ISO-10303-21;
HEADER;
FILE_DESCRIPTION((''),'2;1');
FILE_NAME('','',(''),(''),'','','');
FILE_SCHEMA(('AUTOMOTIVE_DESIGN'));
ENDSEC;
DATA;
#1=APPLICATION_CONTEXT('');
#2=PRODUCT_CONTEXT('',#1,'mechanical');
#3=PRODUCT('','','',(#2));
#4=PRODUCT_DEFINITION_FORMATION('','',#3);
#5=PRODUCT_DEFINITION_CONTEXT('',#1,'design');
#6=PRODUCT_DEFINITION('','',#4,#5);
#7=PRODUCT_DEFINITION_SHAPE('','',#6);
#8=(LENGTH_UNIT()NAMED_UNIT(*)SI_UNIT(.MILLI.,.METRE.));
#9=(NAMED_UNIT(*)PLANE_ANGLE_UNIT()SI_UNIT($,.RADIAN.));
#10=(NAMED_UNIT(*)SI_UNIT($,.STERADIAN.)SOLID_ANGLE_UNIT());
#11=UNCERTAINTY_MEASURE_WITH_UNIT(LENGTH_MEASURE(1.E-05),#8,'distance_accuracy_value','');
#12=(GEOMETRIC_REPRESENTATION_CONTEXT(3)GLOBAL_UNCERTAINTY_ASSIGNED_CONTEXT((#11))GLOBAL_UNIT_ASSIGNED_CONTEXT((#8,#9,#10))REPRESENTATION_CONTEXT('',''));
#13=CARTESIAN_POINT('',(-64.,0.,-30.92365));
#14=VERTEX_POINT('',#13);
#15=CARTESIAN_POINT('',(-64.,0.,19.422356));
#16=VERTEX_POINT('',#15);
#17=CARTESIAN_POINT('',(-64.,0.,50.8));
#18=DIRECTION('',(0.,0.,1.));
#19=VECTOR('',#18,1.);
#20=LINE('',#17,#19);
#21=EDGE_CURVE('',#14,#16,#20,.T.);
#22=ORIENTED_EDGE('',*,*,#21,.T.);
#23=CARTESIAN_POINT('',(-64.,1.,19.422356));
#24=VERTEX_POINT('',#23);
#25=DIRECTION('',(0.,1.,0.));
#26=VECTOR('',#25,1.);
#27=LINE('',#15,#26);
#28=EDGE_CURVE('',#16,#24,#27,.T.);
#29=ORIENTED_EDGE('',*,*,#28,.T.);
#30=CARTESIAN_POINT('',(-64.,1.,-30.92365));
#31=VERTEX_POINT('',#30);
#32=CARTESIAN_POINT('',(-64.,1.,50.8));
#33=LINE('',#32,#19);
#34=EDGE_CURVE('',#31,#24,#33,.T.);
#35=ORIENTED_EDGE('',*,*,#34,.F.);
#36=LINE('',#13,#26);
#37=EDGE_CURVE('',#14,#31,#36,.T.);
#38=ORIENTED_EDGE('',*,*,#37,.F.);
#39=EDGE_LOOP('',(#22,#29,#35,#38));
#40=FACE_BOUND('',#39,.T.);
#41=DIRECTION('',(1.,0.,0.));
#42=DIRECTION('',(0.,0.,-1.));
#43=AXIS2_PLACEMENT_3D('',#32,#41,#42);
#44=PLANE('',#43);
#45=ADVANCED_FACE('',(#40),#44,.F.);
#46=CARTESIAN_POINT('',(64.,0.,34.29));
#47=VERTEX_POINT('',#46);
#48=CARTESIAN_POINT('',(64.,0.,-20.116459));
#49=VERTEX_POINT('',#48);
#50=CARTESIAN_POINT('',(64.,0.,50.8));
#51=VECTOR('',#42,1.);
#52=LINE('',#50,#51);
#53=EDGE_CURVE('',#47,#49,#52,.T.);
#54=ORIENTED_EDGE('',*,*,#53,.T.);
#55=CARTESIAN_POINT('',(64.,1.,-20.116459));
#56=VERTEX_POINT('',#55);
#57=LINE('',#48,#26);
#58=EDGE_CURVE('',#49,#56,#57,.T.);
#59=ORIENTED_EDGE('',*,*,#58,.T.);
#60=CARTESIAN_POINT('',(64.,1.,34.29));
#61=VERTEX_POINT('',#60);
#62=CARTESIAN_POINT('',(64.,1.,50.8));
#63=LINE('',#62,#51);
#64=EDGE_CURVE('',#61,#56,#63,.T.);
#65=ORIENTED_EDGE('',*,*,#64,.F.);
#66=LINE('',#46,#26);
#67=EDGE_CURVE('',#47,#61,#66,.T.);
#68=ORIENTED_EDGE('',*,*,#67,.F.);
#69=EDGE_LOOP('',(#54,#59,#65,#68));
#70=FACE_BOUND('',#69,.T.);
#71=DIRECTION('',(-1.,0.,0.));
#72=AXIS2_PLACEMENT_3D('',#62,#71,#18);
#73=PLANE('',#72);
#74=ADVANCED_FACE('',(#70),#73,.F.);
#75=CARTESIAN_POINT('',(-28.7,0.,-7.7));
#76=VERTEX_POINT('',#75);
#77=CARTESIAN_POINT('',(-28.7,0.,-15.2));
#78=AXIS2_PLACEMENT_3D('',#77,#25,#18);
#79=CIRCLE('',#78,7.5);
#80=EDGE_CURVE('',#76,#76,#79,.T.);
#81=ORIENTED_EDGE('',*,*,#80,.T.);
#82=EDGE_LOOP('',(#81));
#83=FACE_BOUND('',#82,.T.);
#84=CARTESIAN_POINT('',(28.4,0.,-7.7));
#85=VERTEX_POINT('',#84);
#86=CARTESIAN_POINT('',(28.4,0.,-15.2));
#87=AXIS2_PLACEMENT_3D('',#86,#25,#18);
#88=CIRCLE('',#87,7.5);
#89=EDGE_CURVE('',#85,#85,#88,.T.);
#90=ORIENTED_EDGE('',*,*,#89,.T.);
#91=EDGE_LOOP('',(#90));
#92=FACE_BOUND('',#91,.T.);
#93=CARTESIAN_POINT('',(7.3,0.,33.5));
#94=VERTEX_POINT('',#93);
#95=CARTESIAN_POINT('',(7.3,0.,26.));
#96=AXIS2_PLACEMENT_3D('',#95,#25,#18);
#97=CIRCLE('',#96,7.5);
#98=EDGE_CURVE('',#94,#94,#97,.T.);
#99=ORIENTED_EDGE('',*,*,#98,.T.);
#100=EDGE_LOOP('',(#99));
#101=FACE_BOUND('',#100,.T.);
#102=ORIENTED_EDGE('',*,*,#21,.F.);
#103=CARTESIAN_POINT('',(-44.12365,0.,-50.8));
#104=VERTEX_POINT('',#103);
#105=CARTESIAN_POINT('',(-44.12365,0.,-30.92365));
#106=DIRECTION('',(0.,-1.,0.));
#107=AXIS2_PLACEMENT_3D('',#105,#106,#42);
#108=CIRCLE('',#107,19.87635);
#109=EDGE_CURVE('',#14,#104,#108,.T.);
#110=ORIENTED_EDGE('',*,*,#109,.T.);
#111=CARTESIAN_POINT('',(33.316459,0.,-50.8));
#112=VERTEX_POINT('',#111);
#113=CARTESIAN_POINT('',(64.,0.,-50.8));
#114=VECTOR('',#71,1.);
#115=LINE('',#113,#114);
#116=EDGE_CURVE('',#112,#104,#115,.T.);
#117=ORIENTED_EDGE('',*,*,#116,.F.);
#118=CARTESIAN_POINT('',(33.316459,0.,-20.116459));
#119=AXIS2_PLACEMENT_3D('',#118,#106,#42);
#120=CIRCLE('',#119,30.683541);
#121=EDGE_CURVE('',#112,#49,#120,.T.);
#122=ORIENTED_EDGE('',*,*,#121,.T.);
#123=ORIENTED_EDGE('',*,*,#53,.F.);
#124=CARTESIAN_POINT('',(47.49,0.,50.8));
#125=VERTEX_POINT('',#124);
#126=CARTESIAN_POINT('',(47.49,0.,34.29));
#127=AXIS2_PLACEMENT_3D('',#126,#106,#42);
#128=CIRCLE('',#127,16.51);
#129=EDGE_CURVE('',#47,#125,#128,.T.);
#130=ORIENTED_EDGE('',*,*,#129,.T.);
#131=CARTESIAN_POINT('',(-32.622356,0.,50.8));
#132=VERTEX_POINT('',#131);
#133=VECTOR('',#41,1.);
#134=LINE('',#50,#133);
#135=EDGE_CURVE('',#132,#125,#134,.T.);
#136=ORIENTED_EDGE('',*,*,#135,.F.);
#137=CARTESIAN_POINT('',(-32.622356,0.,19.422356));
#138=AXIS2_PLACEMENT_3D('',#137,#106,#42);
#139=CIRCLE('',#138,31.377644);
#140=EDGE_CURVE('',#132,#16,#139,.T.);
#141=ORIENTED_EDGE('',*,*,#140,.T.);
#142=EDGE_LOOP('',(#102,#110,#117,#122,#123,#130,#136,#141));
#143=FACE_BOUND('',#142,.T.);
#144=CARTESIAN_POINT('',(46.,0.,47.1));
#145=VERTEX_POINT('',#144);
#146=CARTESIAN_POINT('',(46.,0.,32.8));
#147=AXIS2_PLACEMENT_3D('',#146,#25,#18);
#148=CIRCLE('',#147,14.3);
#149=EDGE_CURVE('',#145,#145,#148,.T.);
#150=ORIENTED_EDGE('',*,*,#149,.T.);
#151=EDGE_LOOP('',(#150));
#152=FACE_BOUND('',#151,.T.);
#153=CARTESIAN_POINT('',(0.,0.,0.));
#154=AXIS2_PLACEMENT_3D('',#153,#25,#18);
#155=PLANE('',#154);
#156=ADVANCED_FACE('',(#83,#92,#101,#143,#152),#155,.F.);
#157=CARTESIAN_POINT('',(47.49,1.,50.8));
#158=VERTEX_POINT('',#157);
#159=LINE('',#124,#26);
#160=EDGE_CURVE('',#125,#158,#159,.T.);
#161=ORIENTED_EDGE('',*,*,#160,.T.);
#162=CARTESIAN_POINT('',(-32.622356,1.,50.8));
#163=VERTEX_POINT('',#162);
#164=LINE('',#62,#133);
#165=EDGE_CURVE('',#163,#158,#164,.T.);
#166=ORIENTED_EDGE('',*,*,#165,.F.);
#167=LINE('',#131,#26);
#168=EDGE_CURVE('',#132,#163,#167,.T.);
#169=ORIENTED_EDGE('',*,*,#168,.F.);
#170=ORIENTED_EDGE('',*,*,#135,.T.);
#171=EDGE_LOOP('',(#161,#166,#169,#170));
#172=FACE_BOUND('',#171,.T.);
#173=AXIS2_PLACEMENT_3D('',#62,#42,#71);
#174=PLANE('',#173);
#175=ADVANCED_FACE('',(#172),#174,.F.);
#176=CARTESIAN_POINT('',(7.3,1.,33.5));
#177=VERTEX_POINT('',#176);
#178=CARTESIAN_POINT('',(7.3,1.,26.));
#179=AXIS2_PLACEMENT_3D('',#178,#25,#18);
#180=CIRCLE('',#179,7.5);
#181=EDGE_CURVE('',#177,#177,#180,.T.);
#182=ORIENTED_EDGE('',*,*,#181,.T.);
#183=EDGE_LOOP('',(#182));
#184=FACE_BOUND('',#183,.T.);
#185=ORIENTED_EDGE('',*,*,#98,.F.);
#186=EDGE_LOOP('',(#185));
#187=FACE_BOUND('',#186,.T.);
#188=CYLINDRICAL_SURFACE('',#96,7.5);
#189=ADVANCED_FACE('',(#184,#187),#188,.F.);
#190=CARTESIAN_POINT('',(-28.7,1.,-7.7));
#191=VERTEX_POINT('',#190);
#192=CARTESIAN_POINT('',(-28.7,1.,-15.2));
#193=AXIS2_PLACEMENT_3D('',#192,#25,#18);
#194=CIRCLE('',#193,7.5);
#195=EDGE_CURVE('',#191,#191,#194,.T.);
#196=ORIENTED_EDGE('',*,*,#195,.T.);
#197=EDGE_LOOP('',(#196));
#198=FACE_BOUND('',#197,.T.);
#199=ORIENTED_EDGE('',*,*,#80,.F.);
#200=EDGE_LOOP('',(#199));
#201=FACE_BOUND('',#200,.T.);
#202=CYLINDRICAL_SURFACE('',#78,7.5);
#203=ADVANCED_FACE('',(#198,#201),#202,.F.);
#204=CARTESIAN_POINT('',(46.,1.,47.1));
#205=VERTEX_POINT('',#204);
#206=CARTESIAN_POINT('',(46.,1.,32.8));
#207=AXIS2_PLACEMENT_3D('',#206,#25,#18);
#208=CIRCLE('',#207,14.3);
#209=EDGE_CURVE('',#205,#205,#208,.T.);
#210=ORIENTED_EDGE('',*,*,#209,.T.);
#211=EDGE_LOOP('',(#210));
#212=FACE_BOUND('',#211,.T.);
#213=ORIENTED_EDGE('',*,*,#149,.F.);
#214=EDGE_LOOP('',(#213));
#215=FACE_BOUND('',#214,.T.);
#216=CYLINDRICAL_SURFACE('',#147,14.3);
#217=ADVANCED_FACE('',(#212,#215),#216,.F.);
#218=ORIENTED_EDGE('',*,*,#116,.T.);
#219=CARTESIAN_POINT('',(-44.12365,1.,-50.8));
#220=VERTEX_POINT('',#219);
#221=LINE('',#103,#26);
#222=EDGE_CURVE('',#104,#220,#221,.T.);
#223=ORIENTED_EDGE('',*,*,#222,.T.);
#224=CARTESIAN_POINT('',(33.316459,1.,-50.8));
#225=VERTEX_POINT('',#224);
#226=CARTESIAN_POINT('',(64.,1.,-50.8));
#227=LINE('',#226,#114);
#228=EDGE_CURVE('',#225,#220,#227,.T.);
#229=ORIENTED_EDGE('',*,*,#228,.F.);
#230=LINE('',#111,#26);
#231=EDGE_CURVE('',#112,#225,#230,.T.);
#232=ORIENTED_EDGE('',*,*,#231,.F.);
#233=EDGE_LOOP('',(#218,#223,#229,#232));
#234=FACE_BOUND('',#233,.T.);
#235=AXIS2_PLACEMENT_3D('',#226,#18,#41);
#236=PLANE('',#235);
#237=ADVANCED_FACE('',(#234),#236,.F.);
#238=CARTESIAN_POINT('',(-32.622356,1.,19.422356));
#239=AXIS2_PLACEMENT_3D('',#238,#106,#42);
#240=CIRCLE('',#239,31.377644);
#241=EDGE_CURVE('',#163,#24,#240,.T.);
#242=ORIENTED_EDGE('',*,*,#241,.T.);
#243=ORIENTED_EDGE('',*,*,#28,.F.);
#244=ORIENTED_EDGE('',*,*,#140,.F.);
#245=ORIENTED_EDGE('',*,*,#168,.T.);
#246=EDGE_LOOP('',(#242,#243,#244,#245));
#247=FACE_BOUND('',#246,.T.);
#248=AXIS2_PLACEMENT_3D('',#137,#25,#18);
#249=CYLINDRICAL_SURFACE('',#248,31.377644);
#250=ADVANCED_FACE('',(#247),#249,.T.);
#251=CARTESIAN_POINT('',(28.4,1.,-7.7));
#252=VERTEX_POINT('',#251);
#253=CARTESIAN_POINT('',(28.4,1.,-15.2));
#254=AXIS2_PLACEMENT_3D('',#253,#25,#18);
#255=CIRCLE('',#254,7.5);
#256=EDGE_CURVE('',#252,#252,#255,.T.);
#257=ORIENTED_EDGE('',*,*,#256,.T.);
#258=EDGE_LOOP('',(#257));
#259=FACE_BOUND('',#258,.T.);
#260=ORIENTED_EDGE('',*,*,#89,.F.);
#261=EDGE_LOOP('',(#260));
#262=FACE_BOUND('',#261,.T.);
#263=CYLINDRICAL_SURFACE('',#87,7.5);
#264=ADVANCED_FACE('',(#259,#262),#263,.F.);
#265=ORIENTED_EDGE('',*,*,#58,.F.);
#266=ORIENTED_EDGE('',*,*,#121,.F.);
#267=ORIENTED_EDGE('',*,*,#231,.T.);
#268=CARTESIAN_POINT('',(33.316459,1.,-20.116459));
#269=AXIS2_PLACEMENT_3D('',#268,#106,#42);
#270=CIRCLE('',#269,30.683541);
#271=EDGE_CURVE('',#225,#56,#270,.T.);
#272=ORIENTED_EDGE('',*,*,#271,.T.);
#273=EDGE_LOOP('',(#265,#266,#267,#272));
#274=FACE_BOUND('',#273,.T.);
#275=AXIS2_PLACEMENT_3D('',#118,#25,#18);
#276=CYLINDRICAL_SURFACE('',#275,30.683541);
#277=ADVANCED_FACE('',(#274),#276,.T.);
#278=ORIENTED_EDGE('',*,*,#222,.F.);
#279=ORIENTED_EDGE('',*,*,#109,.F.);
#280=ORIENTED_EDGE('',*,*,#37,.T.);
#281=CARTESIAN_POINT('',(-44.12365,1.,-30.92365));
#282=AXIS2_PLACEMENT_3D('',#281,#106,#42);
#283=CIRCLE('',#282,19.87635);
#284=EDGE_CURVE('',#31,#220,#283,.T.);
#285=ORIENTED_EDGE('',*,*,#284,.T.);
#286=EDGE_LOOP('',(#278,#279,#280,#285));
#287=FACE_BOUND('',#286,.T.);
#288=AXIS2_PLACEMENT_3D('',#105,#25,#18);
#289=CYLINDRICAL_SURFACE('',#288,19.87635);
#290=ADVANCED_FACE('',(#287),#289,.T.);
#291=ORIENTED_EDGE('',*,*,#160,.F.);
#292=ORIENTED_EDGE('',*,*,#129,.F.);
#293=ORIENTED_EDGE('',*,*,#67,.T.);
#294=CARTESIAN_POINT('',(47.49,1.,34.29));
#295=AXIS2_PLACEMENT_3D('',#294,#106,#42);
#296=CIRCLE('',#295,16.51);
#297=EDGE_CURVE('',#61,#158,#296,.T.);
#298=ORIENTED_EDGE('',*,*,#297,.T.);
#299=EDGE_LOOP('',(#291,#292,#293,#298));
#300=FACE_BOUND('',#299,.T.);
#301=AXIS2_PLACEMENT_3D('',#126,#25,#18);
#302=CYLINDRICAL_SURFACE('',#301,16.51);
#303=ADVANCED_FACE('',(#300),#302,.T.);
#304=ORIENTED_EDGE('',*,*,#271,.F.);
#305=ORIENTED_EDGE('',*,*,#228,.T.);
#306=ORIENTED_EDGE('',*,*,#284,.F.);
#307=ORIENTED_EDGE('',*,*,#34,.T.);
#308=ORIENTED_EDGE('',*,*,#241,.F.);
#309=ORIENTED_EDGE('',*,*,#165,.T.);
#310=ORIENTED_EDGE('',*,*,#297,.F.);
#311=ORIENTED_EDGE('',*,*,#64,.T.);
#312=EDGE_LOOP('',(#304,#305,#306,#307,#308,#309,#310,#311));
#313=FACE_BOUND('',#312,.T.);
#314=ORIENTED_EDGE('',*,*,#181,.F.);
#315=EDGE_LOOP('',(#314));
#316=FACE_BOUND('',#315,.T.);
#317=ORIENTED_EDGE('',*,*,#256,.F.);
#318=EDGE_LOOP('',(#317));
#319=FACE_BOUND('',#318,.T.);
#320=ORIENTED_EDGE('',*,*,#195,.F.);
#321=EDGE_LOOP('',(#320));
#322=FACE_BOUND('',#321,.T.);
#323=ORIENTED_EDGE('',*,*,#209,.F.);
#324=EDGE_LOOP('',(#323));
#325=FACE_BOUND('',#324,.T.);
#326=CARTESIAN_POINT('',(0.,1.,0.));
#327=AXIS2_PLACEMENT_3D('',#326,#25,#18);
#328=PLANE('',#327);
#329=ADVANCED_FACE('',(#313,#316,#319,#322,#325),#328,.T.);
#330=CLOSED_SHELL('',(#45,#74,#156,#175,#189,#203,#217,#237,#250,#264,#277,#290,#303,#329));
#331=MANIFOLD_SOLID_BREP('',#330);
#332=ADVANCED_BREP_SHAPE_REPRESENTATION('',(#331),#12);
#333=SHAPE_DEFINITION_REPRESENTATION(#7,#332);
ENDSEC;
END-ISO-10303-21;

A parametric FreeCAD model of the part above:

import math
import FreeCAD as App
import Part
import Sketcher
Q = App.Units.Quantity

doc = App.newDocument("Part")
body = doc.addObject("PartDesign::Body", "Body")

# Sketch on XZ plane
sketch1 = body.newObject("Sketcher::SketchObject", "Sketch")
sketch1.AttachmentSupport = (doc.getObject("XZ_Plane"), [""])
sketch1.MapMode = "FlatFace"
sketch1.addGeometry([
    Part.LineSegment(App.Vector(-64, -50.8, 0), App.Vector(-64, 50.8, 0)),
    Part.LineSegment(App.Vector(-64, 50.8, 0), App.Vector(64, 50.8, 0)),
    Part.LineSegment(App.Vector(64, 50.8, 0), App.Vector(64, -50.8, 0)),
    Part.LineSegment(App.Vector(64, -50.8, 0), App.Vector(-64, -50.8, 0)),
], False)
sketch1.addConstraint([
    Sketcher.Constraint("Coincident", 0, 2, 1, 1),
    Sketcher.Constraint("Coincident", 1, 2, 2, 1),
    Sketcher.Constraint("Coincident", 2, 2, 3, 1),
    Sketcher.Constraint("Coincident", 3, 2, 0, 1),
    Sketcher.Constraint("Vertical", 0),
    Sketcher.Constraint("Horizontal", 1),
    Sketcher.Constraint("Vertical", 2),
    Sketcher.Constraint("Horizontal", 3),
    Sketcher.Constraint("Symmetric", 0, 2, 2, 2, -1, 1),
    Sketcher.Constraint("DistanceX", 1, 1, 1, 2, Q("128 mm")),
    Sketcher.Constraint("DistanceY", 0, 1, 0, 2, Q("101.6 mm")),
])
pad1 = body.newObject("PartDesign::Pad", "Pad")
pad1.Profile = sketch1
pad1.Length = 1
pad1.Reversed = True

# Sketch on XZ plane
sketch2 = body.newObject("Sketcher::SketchObject", "Sketch001")
sketch2.AttachmentSupport = (doc.getObject("XZ_Plane"), [""])
sketch2.MapMode = "FlatFace"
sketch2.AttachmentOffset = App.Placement(App.Vector(0, 0, -1), App.Rotation())
sketch2.addGeometry([
    Part.LineSegment(App.Vector(-64, 19.422356, 0), App.Vector(-64, 50.8, 0)),  # 0
    Part.LineSegment(App.Vector(-64, 50.8, 0), App.Vector(-32.622356, 50.8, 0)),  # 1
    Part.ArcOfCircle(Part.Circle(App.Vector(-32.622356, 19.422356, 0), App.Vector(0, 0, 1), 31.377644), math.radians(90), math.radians(180)),  # 2
    Part.LineSegment(App.Vector(47.49, 50.8, 0), App.Vector(64, 50.8, 0)),  # 3
    Part.LineSegment(App.Vector(64, 50.8, 0), App.Vector(64, 34.29, 0)),  # 4
    Part.ArcOfCircle(Part.Circle(App.Vector(47.49, 34.29, 0), App.Vector(0, 0, 1), 16.51), math.radians(0), math.radians(90)),  # 5
    Part.LineSegment(App.Vector(-64, -50.8, 0), App.Vector(-64, -30.92365, 0)),  # 6
    Part.ArcOfCircle(Part.Circle(App.Vector(-44.12365, -30.92365, 0), App.Vector(0, 0, 1), 19.87635), math.radians(180), math.radians(270)),  # 7
    Part.LineSegment(App.Vector(-44.12365, -50.8, 0), App.Vector(-64, -50.8, 0)),  # 8
    Part.LineSegment(App.Vector(64, -20.116459, 0), App.Vector(64, -50.8, 0)),  # 9
    Part.LineSegment(App.Vector(64, -50.8, 0), App.Vector(33.316459, -50.8, 0)),  # 10
    Part.ArcOfCircle(Part.Circle(App.Vector(33.316459, -20.116459, 0), App.Vector(0, 0, 1), 30.683541), math.radians(-90), math.radians(0)),  # 11
], False)
sketch2.addConstraint([
    Sketcher.Constraint("Coincident", 0, 2, 1, 1),
    Sketcher.Constraint("Tangent", 1, 2, 2, 1),
    Sketcher.Constraint("Tangent", 2, 2, 0, 1),
    Sketcher.Constraint("Coincident", 3, 2, 4, 1),
    Sketcher.Constraint("Tangent", 4, 2, 5, 1),
    Sketcher.Constraint("Tangent", 5, 2, 3, 1),
    Sketcher.Constraint("Tangent", 6, 2, 7, 1),
    Sketcher.Constraint("Tangent", 7, 2, 8, 1),
    Sketcher.Constraint("Coincident", 8, 2, 6, 1),
    Sketcher.Constraint("Coincident", 9, 2, 10, 1),
    Sketcher.Constraint("Tangent", 10, 2, 11, 1),
    Sketcher.Constraint("Tangent", 11, 2, 9, 1),
    Sketcher.Constraint("Vertical", 0),
    Sketcher.Constraint("Horizontal", 1),
    Sketcher.Constraint("Horizontal", 3),
    Sketcher.Constraint("Vertical", 4),
    Sketcher.Constraint("Vertical", 6),
    Sketcher.Constraint("Horizontal", 8),
    Sketcher.Constraint("Vertical", 9),
    Sketcher.Constraint("Horizontal", 10),
    Sketcher.Constraint("Symmetric", 3, 2, 8, 2, -1, 1),
    Sketcher.Constraint("Symmetric", 0, 2, 9, 2, -1, 1),
    Sketcher.Constraint("Symmetric", 0, 2, 3, 2, -2),
    Sketcher.Constraint("Radius", 5, Q("16.51 mm")),
    Sketcher.Constraint("DistanceX", 0, 2, -1, 1, Q("64 mm")),
    Sketcher.Constraint("DistanceY", -1, 1, 0, 2, Q("50.8 mm")),
    Sketcher.Constraint("Radius", 7, Q("19.87635 mm")),
    Sketcher.Constraint("Radius", 11, Q("30.683541 mm")),
    Sketcher.Constraint("Radius", 2, Q("31.377644 mm")),
])
pocket1 = body.newObject("PartDesign::Pocket", "Pocket")
pocket1.Profile = sketch2
pocket1.Length = 1
pocket1.Reversed = True

# Sketch on XZ plane
sketch3 = body.newObject("Sketcher::SketchObject", "Sketch002")
sketch3.AttachmentSupport = (doc.getObject("XZ_Plane"), [""])
sketch3.MapMode = "FlatFace"
sketch3.AttachmentOffset = App.Placement(App.Vector(0, 0, -1), App.Rotation())
sketch3.addGeometry([
    Part.Circle(App.Vector(46, 32.8, 0), App.Vector(0, 0, 1), 14.3),
    Part.Circle(App.Vector(7.3, 26, 0), App.Vector(0, 0, 1), 7.5),
    Part.Circle(App.Vector(-28.7, -15.2, 0), App.Vector(0, 0, 1), 7.5),
    Part.Circle(App.Vector(28.4, -15.2, 0), App.Vector(0, 0, 1), 7.5),
], False)
sketch3.addConstraint([
    Sketcher.Constraint("Equal", 1, 2),
    Sketcher.Constraint("Equal", 2, 3),
    Sketcher.Constraint("Horizontal", 2, 3, 3, 3),
    Sketcher.Constraint("Diameter", 1, Q("15 mm")),
    Sketcher.Constraint("Diameter", 0, Q("28.6 mm")),
    Sketcher.Constraint("DistanceX", -1, 1, 0, 3, Q("46 mm")),
    Sketcher.Constraint("DistanceY", -1, 1, 1, 3, Q("26 mm")),
    Sketcher.Constraint("DistanceX", 2, 3, 1, 3, Q("36 mm")),
    Sketcher.Constraint("DistanceY", 2, 3, 0, 3, Q("48 mm")),
    Sketcher.Constraint("DistanceY", -1, 1, 0, 3, Q("32.8 mm")),
    Sketcher.Constraint("DistanceX", -1, 1, 1, 3, Q("7.3 mm")),
    Sketcher.Constraint("DistanceX", -1, 1, 3, 3, Q("28.4 mm")),
])
pocket2 = body.newObject("PartDesign::Pocket", "Pocket001")
pocket2.Profile = sketch3
pocket2.Length = 1
pocket2.Reversed = True

doc.recompute()
